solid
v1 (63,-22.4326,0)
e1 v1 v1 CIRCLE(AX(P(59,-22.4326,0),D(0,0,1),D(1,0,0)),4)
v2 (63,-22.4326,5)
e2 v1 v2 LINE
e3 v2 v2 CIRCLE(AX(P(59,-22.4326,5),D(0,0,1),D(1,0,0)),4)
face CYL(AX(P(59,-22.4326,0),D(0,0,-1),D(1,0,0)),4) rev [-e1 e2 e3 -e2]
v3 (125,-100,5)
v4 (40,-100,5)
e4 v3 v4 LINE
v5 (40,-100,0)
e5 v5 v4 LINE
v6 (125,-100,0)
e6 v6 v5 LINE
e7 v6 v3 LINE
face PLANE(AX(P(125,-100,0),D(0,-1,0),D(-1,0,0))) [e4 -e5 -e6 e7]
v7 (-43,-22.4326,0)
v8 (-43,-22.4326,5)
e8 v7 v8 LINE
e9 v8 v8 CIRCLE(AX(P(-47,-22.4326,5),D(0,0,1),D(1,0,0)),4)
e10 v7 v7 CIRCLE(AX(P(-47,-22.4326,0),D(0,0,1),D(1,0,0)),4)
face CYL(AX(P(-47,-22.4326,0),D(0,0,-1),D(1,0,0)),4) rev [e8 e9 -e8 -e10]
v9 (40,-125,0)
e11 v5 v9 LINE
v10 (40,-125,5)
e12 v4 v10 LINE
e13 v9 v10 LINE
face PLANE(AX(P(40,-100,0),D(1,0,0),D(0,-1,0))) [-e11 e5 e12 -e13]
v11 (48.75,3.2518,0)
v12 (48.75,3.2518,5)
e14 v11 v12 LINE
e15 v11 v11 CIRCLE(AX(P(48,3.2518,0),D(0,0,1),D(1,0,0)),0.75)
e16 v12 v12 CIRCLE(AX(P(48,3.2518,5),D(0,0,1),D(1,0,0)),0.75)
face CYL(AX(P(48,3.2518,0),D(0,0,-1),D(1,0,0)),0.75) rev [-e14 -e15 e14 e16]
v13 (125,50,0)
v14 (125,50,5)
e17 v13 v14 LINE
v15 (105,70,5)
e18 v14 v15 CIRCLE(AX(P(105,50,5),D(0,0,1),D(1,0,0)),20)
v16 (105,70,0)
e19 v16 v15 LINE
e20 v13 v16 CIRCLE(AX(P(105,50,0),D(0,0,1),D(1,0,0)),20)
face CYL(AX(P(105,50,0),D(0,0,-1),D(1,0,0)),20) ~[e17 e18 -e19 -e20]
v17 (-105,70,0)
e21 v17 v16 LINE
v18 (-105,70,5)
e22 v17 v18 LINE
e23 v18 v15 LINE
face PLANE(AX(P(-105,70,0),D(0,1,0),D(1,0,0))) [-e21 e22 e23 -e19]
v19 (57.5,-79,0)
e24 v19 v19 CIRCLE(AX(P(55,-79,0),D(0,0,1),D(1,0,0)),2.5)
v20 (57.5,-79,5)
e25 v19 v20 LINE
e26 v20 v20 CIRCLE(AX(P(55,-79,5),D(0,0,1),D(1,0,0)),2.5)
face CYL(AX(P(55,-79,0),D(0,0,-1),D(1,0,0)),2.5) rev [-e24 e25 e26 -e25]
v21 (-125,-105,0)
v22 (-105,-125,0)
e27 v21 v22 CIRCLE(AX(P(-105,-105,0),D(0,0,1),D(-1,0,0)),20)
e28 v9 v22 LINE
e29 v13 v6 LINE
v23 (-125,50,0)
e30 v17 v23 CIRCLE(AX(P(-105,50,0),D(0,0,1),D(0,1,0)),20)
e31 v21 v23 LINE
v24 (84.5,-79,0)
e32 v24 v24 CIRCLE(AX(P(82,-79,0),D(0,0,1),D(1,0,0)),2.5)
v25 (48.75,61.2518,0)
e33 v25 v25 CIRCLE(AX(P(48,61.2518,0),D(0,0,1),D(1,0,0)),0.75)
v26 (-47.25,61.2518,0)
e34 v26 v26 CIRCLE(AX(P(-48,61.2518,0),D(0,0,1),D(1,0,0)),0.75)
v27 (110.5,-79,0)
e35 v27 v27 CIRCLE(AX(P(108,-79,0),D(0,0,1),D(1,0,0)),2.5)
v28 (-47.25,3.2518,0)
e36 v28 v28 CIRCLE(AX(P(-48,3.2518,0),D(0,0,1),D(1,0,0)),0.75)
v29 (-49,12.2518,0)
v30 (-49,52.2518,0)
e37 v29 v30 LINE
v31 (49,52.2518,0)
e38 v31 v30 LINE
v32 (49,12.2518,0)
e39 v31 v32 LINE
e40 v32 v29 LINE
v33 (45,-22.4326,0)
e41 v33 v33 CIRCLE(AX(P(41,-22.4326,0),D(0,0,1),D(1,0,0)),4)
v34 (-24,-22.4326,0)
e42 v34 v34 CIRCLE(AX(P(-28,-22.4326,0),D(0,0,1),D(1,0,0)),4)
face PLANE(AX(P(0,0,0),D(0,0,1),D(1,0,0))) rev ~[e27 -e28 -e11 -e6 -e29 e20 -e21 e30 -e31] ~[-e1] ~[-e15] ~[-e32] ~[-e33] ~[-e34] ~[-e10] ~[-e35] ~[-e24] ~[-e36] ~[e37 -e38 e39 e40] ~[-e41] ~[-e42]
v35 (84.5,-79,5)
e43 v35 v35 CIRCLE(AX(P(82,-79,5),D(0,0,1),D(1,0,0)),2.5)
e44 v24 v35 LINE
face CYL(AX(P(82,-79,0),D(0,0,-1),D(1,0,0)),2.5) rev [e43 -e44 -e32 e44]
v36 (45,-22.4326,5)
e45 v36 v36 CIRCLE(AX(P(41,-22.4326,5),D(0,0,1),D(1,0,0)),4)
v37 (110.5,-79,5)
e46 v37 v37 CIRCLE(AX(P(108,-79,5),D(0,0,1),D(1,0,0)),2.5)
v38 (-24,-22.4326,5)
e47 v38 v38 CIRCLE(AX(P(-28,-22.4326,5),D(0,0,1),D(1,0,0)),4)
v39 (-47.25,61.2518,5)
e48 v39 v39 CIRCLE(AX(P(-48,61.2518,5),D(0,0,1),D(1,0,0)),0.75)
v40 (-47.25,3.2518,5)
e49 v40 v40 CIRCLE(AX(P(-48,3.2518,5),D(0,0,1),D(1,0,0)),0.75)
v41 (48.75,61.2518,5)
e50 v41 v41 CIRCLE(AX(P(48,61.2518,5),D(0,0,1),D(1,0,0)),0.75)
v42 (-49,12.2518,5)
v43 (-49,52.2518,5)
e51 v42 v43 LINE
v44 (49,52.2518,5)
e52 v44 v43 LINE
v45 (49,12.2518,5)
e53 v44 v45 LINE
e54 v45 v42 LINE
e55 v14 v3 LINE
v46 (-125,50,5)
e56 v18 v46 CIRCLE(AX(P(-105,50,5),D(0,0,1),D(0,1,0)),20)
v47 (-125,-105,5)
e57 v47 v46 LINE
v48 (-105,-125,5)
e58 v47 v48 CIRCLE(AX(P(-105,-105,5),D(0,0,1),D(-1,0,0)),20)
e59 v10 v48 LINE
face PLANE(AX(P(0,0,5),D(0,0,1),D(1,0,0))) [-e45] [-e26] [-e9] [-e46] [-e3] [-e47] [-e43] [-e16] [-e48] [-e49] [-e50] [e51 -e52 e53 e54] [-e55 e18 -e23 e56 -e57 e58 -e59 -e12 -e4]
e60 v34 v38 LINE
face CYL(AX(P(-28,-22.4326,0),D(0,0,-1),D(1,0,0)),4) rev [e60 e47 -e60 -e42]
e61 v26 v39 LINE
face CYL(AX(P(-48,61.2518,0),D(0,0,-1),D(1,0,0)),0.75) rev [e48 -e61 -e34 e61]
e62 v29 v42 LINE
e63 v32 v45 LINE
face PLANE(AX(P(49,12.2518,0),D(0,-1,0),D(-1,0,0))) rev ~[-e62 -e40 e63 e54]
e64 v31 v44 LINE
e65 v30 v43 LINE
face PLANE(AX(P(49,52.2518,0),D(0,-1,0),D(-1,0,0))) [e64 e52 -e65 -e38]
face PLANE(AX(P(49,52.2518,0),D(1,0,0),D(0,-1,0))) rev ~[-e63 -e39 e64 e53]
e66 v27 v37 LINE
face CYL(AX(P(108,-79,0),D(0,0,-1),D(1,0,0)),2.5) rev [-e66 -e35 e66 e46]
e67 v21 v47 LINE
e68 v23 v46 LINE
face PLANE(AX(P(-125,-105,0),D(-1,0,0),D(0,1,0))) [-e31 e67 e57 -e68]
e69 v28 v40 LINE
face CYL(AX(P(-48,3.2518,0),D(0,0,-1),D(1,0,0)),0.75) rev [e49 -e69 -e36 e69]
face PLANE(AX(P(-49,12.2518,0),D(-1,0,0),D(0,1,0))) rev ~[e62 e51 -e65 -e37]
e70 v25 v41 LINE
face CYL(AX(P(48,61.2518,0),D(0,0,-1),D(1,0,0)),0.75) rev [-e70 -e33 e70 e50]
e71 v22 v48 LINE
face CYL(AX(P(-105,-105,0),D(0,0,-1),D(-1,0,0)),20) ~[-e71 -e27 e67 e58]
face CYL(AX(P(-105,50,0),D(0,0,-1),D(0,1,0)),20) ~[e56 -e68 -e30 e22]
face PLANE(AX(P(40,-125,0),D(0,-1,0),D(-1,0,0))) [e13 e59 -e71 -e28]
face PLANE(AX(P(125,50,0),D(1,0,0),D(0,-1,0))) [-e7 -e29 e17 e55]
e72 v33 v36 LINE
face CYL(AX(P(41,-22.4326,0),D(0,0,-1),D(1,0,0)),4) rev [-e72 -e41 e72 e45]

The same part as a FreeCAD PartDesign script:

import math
import FreeCAD as App
import Part
import Sketcher
Q = App.Units.Quantity


def add_polygon(sketch, points):
    """Adds a closed chain of lines whose ends are joined by coincident constraints."""
    first, n = sketch.GeometryCount, len(points)
    for a, b in zip(points, points[1:] + points[:1]):
        sketch.addGeometry(Part.LineSegment(App.Vector(*a, 0), App.Vector(*b, 0)), False)
    for i in range(n):
        sketch.addConstraint(Sketcher.Constraint("Coincident", first + i, 2, first + (i + 1) % n, 1))

doc = App.newDocument("Part")
params = doc.addObject("Spreadsheet::Sheet", "Params")
for row, (alias, value) in enumerate([
    ("sketch1_diameter", "5 mm"),
    ("sketch1_diameter2", "8 mm"),
    ("sketch1_radius", "20 mm"),
    ("sketch1_diameter3", "1.5 mm"),
    ("sketch1_width", "85 mm"),
    ("pad1_length", "5 mm"),
], start=1):
    params.set(f"A{row}", alias)
    params.set(f"B{row}", "=" + value)
    params.setAlias(f"B{row}", alias)

body = doc.addObject("PartDesign::Body", "Body")

sketch1 = body.newObject("Sketcher::SketchObject", "Sketch")
sketch1.AttachmentSupport = (doc.getObject("XY_Plane"), [""])
sketch1.MapMode = "FlatFace"
sketch1.addGeometry(Part.LineSegment(App.Vector(105, 70, 0), App.Vector(-105, 70, 0)), False)
sketch1.addGeometry(Part.ArcOfCircle(Part.Circle(App.Vector(-105, 50, 0), App.Vector(0, 0, 1), 20), math.radians(90), math.radians(180)), False)
sketch1.addGeometry(Part.LineSegment(App.Vector(-125, 50, 0), App.Vector(-125, -105, 0)), False)
sketch1.addGeometry(Part.ArcOfCircle(Part.Circle(App.Vector(-105, -105, 0), App.Vector(0, 0, 1), 20), math.radians(180), math.radians(270)), False)
sketch1.addGeometry(Part.LineSegment(App.Vector(-105, -125, 0), App.Vector(40, -125, 0)), False)
sketch1.addGeometry(Part.LineSegment(App.Vector(40, -125, 0), App.Vector(40, -100, 0)), False)
sketch1.addGeometry(Part.LineSegment(App.Vector(40, -100, 0), App.Vector(125, -100, 0)), False)
sketch1.addGeometry(Part.LineSegment(App.Vector(125, -100, 0), App.Vector(125, 50, 0)), False)
sketch1.addGeometry(Part.ArcOfCircle(Part.Circle(App.Vector(105, 50, 0), App.Vector(0, 0, 1), 20), math.radians(0), math.radians(90)), False)
sketch1.addGeometry(Part.Circle(App.Vector(55, -79, 0), App.Vector(0, 0, 1), 2.5), False)
sketch1.addGeometry(Part.Circle(App.Vector(82, -79, 0), App.Vector(0, 0, 1), 2.5), False)
sketch1.addGeometry(Part.Circle(App.Vector(108, -79, 0), App.Vector(0, 0, 1), 2.5), False)
sketch1.addGeometry(Part.Circle(App.Vector(-47, -22.4, 0), App.Vector(0, 0, 1), 4), False)
sketch1.addGeometry(Part.Circle(App.Vector(-28, -22.4, 0), App.Vector(0, 0, 1), 4), False)
sketch1.addGeometry(Part.Circle(App.Vector(-48, 3.3, 0), App.Vector(0, 0, 1), 0.8), False)
sketch1.addGeometry(Part.Circle(App.Vector(-48, 61.3, 0), App.Vector(0, 0, 1), 0.8), False)
sketch1.addGeometry(Part.Circle(App.Vector(41, -22.4, 0), App.Vector(0, 0, 1), 4), False)
sketch1.addGeometry(Part.Circle(App.Vector(59, -22.4, 0), App.Vector(0, 0, 1), 4), False)
sketch1.addGeometry(Part.Circle(App.Vector(48, 3.3, 0), App.Vector(0, 0, 1), 0.8), False)
add_polygon(sketch1, [(-49, 52.3), (49, 52.3), (49, 12.3), (-49, 12.3)])
sketch1.addGeometry(Part.Circle(App.Vector(48, 61.3, 0), App.Vector(0, 0, 1), 0.8), False)
sketch1.addConstraint(Sketcher.Constraint("Tangent", 0, 2, 1, 1))
sketch1.addConstraint(Sketcher.Constraint("Tangent", 1, 2, 2, 1))
sketch1.addConstraint(Sketcher.Constraint("Tangent", 2, 2, 3, 1))
sketch1.addConstraint(Sketcher.Constraint("Tangent", 3, 2, 4, 1))
sketch1.addConstraint(Sketcher.Constraint("Coincident", 4, 2, 5, 1))
sketch1.addConstraint(Sketcher.Constraint("Coincident", 5, 2, 6, 1))
sketch1.addConstraint(Sketcher.Constraint("Coincident", 6, 2, 7, 1))
sketch1.addConstraint(Sketcher.Constraint("Tangent", 7, 2, 8, 1))
sketch1.addConstraint(Sketcher.Constraint("Tangent", 8, 2, 0, 1))
sketch1.addConstraint(Sketcher.Constraint("Horizontal", 0))
sketch1.addConstraint(Sketcher.Constraint("Vertical", 2))
sketch1.addConstraint(Sketcher.Constraint("Horizontal", 4))
sketch1.addConstraint(Sketcher.Constraint("Vertical", 5))
sketch1.addConstraint(Sketcher.Constraint("Horizontal", 6))
sketch1.addConstraint(Sketcher.Constraint("Vertical", 7))
sketch1.addConstraint(Sketcher.Constraint("Horizontal", 19))
sketch1.addConstraint(Sketcher.Constraint("Vertical", 20))
sketch1.addConstraint(Sketcher.Constraint("Horizontal", 21))
sketch1.addConstraint(Sketcher.Constraint("Vertical", 22))
sketch1.addConstraint(Sketcher.Constraint("Equal", 1, 3))
sketch1.addConstraint(Sketcher.Constraint("Equal", 3, 8))
sketch1.addConstraint(Sketcher.Constraint("Equal", 9, 10))
sketch1.addConstraint(Sketcher.Constraint("Equal", 10, 11))
sketch1.addConstraint(Sketcher.Constraint("Equal", 12, 13))
sketch1.addConstraint(Sketcher.Constraint("Equal", 14, 15))
sketch1.addConstraint(Sketcher.Constraint("Equal", 13, 16))
sketch1.addConstraint(Sketcher.Constraint("Equal", 16, 17))
sketch1.addConstraint(Sketcher.Constraint("Equal", 15, 18))
sketch1.addConstraint(Sketcher.Constraint("Equal", 18, 23))
sketch1.addConstraint(Sketcher.Constraint("Symmetric", 14, 3, 18, 3, -2))
sketch1.addConstraint(Sketcher.Constraint("Symmetric", 15, 3, 23, 3, -2))
sketch1.addConstraint(Sketcher.Constraint("Horizontal", 9, 3, 10, 3))
sketch1.addConstraint(Sketcher.Constraint("Horizontal", 10, 3, 11, 3))
sketch1.addConstraint(Sketcher.Constraint("Horizontal", 12, 3, 13, 3))
sketch1.addConstraint(Sketcher.Constraint("Horizontal", 13, 3, 16, 3))
sketch1.addConstraint(Sketcher.Constraint("Horizontal", 16, 3, 17, 3))
sketch1.addConstraint(Sketcher.Constraint("Vertical", 14, 3, 15, 3))
sketch1.addConstraint(Sketcher.Constraint("Diameter", 9, Q("5 mm")))
sketch1.addConstraint(Sketcher.Constraint("Diameter", 12, Q("8 mm")))
sketch1.addConstraint(Sketcher.Constraint("Radius", 1, Q("20 mm")))
sketch1.addConstraint(Sketcher.Constraint("Diameter", 14, Q("1.5 mm")))
sketch1.addConstraint(Sketcher.Constraint("DistanceX", 6, 1, 6, 2, Q("85 mm")))
sketch1.addConstraint(Sketcher.Constraint("DistanceX", 19, 1, 19, 2, Q("98 mm")))
sketch1.addConstraint(Sketcher.Constraint("DistanceX", 12, 3, 13, 3, Q("19 mm")))
sketch1.addConstraint(Sketcher.Constraint("DistanceX", 14, 3, 12, 3, Q("1 mm")))
sketch1.addConstraint(Sketcher.Constraint("DistanceX", 16, 3, 17, 3, Q("18 mm")))
sketch1.addConstraint(Sketcher.Constraint("DistanceX", 17, 3, 8, 3, Q("46 mm")))
sketch1.addConstraint(Sketcher.Constraint("DistanceX", 4, 2, 9, 3, Q("15 mm")))
sketch1.addConstraint(Sketcher.Constraint("DistanceY", 4, 2, 9, 3, Q("46 mm")))
sketch1.addConstraint(Sketcher.Constraint("DistanceX", 11, 3, 6, 2, Q("17 mm")))
sketch1.addConstraint(Sketcher.Constraint("DistanceX", 23, 3, 19, 2, Q("1 mm")))
sketch1.addConstraint(Sketcher.Constraint("DistanceX", 16, 3, 19, 2, Q("8 mm")))
sketch1.addConstraint(Sketcher.Constraint("DistanceX", 21, 2, 14, 3, Q("1 mm")))
sketch1.addConstraint(Sketcher.Constraint("DistanceX", 0, 2, 0, 1, Q("210 mm")))
sketch1.addConstraint(Sketcher.Constraint("DistanceY", 2, 2, 2, 1, Q("155 mm")))
sketch1.addConstraint(Sketcher.Constraint("DistanceY", 5, 1, 5, 2, Q("25 mm")))
sketch1.addConstraint(Sketcher.Constraint("DistanceY", 20, 2, 20, 1, Q("40 mm")))
sketch1.addConstraint(Sketcher.Constraint("DistanceY", -1, 1, 1, 3, Q("50 mm")))
sketch1.addConstraint(Sketcher.Constraint("DistanceX", -1, 1, 10, 3, Q("82 mm")))
sketch1.addConstraint(Sketcher.Constraint("DistanceY", 14, 3, 15, 3, Q("58 mm")))
sketch1.addConstraint(Sketcher.Constraint("DistanceY", 19, 2, 23, 3, Q("9 mm")))
sketch1.addConstraint(Sketcher.Constraint("DistanceY", 12, 3, -1, 1, Q("22.4326 mm")))
sketch1.addConstraint(Sketcher.Constraint("DistanceY", -1, 1, 14, 3, Q("3.2518 mm")))
sketch1.setExpression("Constraints[41]", "Params.sketch1_diameter")
sketch1.setExpression("Constraints[42]", "Params.sketch1_diameter2")
sketch1.setExpression("Constraints[43]", "Params.sketch1_radius")
sketch1.setExpression("Constraints[44]", "Params.sketch1_diameter3")
sketch1.setExpression("Constraints[45]", "Params.sketch1_width")
pad1 = body.newObject("PartDesign::Pad", "Pad")
pad1.Profile = sketch1
pad1.setExpression("Length", "Params.pad1_length")

doc.recompute()
